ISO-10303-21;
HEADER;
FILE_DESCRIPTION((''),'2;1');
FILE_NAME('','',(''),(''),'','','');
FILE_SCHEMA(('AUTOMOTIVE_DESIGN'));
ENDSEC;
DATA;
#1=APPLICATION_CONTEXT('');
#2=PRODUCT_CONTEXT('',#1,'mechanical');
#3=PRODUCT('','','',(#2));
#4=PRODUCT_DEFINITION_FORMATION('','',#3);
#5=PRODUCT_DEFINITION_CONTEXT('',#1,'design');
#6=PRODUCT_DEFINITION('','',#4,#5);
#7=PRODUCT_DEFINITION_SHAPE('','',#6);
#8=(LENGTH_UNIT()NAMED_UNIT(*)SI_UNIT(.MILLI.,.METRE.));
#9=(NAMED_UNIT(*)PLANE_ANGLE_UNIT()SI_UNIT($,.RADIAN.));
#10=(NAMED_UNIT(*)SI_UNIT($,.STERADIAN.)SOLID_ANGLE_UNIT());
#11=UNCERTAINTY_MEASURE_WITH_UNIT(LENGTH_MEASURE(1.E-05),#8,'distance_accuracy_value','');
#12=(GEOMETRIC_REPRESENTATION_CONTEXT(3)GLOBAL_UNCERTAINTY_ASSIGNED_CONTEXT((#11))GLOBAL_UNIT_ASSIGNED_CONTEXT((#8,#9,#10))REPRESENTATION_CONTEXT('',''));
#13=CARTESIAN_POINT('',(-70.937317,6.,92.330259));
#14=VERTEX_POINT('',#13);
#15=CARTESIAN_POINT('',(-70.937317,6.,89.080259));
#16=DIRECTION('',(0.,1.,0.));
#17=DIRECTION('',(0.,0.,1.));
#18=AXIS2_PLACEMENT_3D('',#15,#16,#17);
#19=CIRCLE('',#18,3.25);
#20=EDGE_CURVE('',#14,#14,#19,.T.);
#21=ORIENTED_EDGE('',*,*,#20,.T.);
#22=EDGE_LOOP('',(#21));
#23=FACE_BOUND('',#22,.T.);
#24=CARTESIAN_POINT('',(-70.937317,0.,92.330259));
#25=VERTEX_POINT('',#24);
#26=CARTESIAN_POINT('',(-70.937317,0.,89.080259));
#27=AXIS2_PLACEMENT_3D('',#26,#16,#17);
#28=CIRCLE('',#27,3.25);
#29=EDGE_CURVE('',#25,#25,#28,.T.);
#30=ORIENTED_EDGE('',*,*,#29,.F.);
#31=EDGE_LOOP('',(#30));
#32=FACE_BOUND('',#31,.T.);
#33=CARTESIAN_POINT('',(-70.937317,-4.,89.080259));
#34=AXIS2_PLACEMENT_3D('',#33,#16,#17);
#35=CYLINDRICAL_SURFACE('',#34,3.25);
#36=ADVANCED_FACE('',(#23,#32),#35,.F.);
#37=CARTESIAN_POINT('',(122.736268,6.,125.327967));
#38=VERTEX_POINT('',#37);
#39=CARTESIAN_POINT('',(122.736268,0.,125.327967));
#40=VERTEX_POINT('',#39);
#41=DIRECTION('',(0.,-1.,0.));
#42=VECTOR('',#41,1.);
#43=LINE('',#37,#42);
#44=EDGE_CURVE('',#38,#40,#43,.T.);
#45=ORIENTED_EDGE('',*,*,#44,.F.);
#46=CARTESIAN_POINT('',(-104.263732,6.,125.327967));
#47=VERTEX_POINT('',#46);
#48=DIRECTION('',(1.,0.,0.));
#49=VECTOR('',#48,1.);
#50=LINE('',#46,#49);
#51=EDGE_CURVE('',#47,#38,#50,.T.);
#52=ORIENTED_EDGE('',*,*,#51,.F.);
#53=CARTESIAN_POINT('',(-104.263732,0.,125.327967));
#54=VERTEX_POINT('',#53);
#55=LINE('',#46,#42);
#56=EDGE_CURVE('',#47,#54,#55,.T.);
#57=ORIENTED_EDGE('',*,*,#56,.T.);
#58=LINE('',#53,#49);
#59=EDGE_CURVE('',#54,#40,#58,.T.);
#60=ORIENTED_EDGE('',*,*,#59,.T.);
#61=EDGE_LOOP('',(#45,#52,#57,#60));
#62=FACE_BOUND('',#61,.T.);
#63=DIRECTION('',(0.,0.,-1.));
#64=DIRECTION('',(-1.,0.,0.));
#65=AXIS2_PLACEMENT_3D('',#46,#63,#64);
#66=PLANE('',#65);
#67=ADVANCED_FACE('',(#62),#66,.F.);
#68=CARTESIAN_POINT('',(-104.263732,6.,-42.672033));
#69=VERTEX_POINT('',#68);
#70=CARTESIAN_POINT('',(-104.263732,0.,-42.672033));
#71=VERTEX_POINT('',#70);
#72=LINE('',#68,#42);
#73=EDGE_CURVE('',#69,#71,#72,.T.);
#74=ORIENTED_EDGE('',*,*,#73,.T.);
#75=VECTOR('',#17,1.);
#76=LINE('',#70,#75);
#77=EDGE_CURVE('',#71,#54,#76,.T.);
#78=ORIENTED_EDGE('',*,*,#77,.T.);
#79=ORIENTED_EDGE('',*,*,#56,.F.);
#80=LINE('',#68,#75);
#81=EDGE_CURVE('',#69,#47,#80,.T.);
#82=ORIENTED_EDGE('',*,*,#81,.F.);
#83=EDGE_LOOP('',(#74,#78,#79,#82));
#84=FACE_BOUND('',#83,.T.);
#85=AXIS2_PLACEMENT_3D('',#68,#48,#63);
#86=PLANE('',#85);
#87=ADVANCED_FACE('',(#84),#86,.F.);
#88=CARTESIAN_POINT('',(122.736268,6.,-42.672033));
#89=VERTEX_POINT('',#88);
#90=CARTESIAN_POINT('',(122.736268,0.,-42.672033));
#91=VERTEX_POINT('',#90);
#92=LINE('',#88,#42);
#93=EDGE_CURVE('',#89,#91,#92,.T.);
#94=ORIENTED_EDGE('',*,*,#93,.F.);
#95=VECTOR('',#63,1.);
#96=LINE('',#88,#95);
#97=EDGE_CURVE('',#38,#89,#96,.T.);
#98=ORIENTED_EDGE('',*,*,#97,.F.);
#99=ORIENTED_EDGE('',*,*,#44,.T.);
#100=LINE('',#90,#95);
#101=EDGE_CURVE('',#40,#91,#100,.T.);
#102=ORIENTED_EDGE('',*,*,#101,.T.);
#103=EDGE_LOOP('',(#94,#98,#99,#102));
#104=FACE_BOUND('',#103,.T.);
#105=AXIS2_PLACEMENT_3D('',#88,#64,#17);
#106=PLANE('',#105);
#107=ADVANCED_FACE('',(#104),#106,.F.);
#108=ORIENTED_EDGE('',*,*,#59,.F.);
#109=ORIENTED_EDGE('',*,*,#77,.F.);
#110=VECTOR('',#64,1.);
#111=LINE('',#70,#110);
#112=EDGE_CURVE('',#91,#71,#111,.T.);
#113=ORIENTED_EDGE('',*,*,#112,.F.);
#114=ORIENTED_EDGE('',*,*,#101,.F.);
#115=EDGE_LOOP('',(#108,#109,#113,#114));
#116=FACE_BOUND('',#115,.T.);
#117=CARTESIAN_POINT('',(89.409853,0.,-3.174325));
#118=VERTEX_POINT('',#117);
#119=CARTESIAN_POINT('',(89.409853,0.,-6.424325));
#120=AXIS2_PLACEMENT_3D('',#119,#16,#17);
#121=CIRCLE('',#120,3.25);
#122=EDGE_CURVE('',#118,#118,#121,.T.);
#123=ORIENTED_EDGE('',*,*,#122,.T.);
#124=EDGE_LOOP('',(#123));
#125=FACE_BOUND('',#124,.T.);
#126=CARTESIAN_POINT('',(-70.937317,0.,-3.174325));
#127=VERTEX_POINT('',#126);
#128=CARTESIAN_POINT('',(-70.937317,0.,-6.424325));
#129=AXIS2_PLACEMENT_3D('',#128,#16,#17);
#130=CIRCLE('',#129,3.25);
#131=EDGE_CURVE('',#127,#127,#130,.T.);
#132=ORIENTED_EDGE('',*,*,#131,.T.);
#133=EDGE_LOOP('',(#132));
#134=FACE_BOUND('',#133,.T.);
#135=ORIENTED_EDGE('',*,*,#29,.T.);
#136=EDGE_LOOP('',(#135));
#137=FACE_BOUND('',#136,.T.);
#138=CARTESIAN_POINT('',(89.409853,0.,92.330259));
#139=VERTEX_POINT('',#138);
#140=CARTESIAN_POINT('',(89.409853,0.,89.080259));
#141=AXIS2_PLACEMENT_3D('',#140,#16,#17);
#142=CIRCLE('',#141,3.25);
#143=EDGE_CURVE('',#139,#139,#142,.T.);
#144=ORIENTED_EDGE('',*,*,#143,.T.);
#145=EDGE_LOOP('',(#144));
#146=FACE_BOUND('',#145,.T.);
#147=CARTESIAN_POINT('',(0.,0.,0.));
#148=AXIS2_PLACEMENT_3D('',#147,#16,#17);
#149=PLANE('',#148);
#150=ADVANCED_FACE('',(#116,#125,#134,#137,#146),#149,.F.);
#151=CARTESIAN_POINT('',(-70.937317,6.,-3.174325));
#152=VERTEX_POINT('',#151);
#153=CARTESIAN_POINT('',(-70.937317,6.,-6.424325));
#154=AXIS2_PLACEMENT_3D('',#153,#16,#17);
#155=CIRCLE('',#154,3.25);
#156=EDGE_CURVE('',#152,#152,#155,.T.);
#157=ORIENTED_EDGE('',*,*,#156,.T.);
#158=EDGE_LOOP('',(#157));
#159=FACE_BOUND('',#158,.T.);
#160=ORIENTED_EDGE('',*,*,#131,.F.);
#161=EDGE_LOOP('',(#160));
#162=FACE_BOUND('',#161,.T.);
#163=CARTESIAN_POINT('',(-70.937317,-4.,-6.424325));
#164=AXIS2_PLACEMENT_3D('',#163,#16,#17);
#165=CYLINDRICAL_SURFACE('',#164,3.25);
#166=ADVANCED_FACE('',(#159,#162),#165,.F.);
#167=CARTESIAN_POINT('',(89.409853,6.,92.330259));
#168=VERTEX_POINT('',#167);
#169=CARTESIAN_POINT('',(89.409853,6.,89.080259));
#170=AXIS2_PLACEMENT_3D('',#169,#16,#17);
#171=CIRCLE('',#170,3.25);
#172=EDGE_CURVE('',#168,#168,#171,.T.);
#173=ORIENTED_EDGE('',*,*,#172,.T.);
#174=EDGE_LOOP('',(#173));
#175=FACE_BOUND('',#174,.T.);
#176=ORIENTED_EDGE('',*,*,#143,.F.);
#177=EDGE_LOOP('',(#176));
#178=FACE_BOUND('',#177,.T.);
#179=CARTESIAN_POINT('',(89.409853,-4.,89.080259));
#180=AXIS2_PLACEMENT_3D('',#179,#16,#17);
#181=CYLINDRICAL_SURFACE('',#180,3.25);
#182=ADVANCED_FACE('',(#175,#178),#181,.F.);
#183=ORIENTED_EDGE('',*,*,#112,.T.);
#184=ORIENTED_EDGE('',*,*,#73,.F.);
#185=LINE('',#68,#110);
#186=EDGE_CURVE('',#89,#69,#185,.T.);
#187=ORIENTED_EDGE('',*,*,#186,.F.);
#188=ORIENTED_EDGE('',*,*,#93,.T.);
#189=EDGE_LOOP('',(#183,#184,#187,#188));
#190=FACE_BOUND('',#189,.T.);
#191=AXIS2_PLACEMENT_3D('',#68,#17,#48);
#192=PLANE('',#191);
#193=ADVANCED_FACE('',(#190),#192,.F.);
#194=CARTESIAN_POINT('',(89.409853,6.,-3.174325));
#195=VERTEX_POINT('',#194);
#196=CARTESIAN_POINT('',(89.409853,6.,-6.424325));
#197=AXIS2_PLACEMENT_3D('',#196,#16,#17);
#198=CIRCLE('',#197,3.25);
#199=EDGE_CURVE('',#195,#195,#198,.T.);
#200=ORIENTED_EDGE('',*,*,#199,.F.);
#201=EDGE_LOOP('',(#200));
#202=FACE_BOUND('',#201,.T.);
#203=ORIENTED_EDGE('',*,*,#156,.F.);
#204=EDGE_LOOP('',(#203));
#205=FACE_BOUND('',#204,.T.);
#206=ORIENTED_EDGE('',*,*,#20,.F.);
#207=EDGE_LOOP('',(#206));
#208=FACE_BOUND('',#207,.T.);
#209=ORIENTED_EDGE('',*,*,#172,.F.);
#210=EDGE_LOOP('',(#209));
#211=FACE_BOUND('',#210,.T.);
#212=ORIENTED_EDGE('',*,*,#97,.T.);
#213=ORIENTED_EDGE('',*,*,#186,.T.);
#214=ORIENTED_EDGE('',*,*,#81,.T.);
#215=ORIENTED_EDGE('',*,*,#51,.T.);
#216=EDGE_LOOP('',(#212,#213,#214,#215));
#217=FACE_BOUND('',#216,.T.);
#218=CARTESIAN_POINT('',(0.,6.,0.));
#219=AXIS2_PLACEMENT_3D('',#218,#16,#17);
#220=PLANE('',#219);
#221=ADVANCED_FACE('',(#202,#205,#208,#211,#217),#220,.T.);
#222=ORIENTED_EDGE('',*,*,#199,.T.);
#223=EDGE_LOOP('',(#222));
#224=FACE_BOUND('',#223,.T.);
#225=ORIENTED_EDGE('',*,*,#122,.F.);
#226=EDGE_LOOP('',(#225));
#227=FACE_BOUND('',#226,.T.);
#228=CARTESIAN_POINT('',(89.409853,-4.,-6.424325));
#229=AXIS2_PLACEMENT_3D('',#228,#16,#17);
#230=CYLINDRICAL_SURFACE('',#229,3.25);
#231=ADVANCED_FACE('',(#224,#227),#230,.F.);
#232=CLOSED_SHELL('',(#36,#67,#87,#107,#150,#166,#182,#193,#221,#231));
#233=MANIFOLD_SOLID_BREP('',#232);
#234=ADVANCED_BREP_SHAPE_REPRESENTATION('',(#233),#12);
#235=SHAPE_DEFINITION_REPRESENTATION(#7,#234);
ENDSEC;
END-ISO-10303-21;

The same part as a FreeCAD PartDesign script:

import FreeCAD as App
import Part
import Sketcher
from FreeCAD import Vector

doc = App.newDocument("Part")
params = doc.addObject("Spreadsheet::Sheet", "Params")
for row, (alias, value) in enumerate([
    ("sketch1_width", "227 mm"),
    ("sketch1_height", "168 mm"),
    ("pad1_length", "6 mm"),
    ("sketch2_diameter", "6.5 mm"),
    ("pocket1_length", "10 mm"),
], start=1):
    params.set(f"A{row}", alias)
    params.set(f"B{row}", "=" + value)
    params.setAlias(f"B{row}", alias)

body = doc.addObject("PartDesign::Body", "Body")

# Sketch on XZ plane
sketch1 = body.newObject("Sketcher::SketchObject", "Sketch")
sketch1.AttachmentSupport = (doc.getObject("XZ_Plane"), [""])
sketch1.MapMode = "FlatFace"
sketch1.addGeometry(Part.LineSegment(Vector(-104, -43, 0), Vector(-104, 125, 0)), False)
sketch1.addGeometry(Part.LineSegment(Vector(-104, 125, 0), Vector(123, 125, 0)), False)
sketch1.addGeometry(Part.LineSegment(Vector(123, 125, 0), Vector(123, -43, 0)), False)
sketch1.addGeometry(Part.LineSegment(Vector(123, -43, 0), Vector(-104, -43, 0)), False)
sketch1.addConstraint(Sketcher.Constraint("Coincident", 0, 2, 1, 1))
sketch1.addConstraint(Sketcher.Constraint("Coincident", 1, 2, 2, 1))
sketch1.addConstraint(Sketcher.Constraint("Coincident", 2, 2, 3, 1))
sketch1.addConstraint(Sketcher.Constraint("Coincident", 3, 2, 0, 1))
sketch1.addConstraint(Sketcher.Constraint("Vertical", 0))
sketch1.addConstraint(Sketcher.Constraint("Horizontal", 1))
sketch1.addConstraint(Sketcher.Constraint("Vertical", 2))
sketch1.addConstraint(Sketcher.Constraint("Horizontal", 3))
sketch1.addConstraint(Sketcher.Constraint("DistanceX", 1, 1, 1, 2, 227.0))
sketch1.addConstraint(Sketcher.Constraint("DistanceY", 0, 1, 0, 2, 168.0))
sketch1.addConstraint(Sketcher.Constraint("DistanceX", 0, 2, -1, 1, 104.263732))
sketch1.addConstraint(Sketcher.Constraint("DistanceY", -1, 1, 0, 2, 125.327967))
sketch1.setExpression("Constraints[8]", "Params.sketch1_width")
sketch1.setExpression("Constraints[9]", "Params.sketch1_height")
pad1 = body.newObject("PartDesign::Pad", "Pad")
pad1.Profile = sketch1
pad1.setExpression("Length", "Params.pad1_length")
pad1.Reversed = True

# Sketch on XZ plane
sketch2 = body.newObject("Sketcher::SketchObject", "Sketch001")
sketch2.AttachmentSupport = (doc.getObject("XZ_Plane"), [""])
sketch2.MapMode = "FlatFace"
sketch2.AttachmentOffset = App.Placement(Vector(0, 0, -6), App.Rotation())
sketch2.addGeometry(Part.Circle(Vector(89.4, 89.1, 0), Vector(0, 0, 1), 3.2), False)
sketch2.addGeometry(Part.Circle(Vector(-70.9, 89.1, 0), Vector(0, 0, 1), 3.2), False)
sketch2.addGeometry(Part.Circle(Vector(89.4, -6.4, 0), Vector(0, 0, 1), 3.2), False)
sketch2.addGeometry(Part.Circle(Vector(-70.9, -6.4, 0), Vector(0, 0, 1), 3.2), False)
sketch2.addConstraint(Sketcher.Constraint("Equal", 0, 1))
sketch2.addConstraint(Sketcher.Constraint("Equal", 1, 2))
sketch2.addConstraint(Sketcher.Constraint("Equal", 2, 3))
sketch2.addConstraint(Sketcher.Constraint("Horizontal", 0, 3, 1, 3))
sketch2.addConstraint(Sketcher.Constraint("Horizontal", 2, 3, 3, 3))
sketch2.addConstraint(Sketcher.Constraint("Vertical", 0, 3, 2, 3))
sketch2.addConstraint(Sketcher.Constraint("Vertical", 1, 3, 3, 3))
sketch2.addConstraint(Sketcher.Constraint("Diameter", 0, 6.5))
sketch2.addConstraint(Sketcher.Constraint("DistanceY", -1, 1, 0, 3, 89.080259))
sketch2.addConstraint(Sketcher.Constraint("DistanceX", 1, 3, 0, 3, 160.34717))
sketch2.addConstraint(Sketcher.Constraint("DistanceX", -1, 1, 0, 3, 89.409853))
sketch2.addConstraint(Sketcher.Constraint("DistanceY", 2, 3, -1, 1, 6.424325))
sketch2.setExpression("Constraints[7]", "Params.sketch2_diameter")
pocket1 = body.newObject("PartDesign::Pocket", "Pocket")
pocket1.Profile = sketch2
pocket1.setExpression("Length", "Params.pocket1_length")
pocket1.Reversed = True

doc.recompute()
